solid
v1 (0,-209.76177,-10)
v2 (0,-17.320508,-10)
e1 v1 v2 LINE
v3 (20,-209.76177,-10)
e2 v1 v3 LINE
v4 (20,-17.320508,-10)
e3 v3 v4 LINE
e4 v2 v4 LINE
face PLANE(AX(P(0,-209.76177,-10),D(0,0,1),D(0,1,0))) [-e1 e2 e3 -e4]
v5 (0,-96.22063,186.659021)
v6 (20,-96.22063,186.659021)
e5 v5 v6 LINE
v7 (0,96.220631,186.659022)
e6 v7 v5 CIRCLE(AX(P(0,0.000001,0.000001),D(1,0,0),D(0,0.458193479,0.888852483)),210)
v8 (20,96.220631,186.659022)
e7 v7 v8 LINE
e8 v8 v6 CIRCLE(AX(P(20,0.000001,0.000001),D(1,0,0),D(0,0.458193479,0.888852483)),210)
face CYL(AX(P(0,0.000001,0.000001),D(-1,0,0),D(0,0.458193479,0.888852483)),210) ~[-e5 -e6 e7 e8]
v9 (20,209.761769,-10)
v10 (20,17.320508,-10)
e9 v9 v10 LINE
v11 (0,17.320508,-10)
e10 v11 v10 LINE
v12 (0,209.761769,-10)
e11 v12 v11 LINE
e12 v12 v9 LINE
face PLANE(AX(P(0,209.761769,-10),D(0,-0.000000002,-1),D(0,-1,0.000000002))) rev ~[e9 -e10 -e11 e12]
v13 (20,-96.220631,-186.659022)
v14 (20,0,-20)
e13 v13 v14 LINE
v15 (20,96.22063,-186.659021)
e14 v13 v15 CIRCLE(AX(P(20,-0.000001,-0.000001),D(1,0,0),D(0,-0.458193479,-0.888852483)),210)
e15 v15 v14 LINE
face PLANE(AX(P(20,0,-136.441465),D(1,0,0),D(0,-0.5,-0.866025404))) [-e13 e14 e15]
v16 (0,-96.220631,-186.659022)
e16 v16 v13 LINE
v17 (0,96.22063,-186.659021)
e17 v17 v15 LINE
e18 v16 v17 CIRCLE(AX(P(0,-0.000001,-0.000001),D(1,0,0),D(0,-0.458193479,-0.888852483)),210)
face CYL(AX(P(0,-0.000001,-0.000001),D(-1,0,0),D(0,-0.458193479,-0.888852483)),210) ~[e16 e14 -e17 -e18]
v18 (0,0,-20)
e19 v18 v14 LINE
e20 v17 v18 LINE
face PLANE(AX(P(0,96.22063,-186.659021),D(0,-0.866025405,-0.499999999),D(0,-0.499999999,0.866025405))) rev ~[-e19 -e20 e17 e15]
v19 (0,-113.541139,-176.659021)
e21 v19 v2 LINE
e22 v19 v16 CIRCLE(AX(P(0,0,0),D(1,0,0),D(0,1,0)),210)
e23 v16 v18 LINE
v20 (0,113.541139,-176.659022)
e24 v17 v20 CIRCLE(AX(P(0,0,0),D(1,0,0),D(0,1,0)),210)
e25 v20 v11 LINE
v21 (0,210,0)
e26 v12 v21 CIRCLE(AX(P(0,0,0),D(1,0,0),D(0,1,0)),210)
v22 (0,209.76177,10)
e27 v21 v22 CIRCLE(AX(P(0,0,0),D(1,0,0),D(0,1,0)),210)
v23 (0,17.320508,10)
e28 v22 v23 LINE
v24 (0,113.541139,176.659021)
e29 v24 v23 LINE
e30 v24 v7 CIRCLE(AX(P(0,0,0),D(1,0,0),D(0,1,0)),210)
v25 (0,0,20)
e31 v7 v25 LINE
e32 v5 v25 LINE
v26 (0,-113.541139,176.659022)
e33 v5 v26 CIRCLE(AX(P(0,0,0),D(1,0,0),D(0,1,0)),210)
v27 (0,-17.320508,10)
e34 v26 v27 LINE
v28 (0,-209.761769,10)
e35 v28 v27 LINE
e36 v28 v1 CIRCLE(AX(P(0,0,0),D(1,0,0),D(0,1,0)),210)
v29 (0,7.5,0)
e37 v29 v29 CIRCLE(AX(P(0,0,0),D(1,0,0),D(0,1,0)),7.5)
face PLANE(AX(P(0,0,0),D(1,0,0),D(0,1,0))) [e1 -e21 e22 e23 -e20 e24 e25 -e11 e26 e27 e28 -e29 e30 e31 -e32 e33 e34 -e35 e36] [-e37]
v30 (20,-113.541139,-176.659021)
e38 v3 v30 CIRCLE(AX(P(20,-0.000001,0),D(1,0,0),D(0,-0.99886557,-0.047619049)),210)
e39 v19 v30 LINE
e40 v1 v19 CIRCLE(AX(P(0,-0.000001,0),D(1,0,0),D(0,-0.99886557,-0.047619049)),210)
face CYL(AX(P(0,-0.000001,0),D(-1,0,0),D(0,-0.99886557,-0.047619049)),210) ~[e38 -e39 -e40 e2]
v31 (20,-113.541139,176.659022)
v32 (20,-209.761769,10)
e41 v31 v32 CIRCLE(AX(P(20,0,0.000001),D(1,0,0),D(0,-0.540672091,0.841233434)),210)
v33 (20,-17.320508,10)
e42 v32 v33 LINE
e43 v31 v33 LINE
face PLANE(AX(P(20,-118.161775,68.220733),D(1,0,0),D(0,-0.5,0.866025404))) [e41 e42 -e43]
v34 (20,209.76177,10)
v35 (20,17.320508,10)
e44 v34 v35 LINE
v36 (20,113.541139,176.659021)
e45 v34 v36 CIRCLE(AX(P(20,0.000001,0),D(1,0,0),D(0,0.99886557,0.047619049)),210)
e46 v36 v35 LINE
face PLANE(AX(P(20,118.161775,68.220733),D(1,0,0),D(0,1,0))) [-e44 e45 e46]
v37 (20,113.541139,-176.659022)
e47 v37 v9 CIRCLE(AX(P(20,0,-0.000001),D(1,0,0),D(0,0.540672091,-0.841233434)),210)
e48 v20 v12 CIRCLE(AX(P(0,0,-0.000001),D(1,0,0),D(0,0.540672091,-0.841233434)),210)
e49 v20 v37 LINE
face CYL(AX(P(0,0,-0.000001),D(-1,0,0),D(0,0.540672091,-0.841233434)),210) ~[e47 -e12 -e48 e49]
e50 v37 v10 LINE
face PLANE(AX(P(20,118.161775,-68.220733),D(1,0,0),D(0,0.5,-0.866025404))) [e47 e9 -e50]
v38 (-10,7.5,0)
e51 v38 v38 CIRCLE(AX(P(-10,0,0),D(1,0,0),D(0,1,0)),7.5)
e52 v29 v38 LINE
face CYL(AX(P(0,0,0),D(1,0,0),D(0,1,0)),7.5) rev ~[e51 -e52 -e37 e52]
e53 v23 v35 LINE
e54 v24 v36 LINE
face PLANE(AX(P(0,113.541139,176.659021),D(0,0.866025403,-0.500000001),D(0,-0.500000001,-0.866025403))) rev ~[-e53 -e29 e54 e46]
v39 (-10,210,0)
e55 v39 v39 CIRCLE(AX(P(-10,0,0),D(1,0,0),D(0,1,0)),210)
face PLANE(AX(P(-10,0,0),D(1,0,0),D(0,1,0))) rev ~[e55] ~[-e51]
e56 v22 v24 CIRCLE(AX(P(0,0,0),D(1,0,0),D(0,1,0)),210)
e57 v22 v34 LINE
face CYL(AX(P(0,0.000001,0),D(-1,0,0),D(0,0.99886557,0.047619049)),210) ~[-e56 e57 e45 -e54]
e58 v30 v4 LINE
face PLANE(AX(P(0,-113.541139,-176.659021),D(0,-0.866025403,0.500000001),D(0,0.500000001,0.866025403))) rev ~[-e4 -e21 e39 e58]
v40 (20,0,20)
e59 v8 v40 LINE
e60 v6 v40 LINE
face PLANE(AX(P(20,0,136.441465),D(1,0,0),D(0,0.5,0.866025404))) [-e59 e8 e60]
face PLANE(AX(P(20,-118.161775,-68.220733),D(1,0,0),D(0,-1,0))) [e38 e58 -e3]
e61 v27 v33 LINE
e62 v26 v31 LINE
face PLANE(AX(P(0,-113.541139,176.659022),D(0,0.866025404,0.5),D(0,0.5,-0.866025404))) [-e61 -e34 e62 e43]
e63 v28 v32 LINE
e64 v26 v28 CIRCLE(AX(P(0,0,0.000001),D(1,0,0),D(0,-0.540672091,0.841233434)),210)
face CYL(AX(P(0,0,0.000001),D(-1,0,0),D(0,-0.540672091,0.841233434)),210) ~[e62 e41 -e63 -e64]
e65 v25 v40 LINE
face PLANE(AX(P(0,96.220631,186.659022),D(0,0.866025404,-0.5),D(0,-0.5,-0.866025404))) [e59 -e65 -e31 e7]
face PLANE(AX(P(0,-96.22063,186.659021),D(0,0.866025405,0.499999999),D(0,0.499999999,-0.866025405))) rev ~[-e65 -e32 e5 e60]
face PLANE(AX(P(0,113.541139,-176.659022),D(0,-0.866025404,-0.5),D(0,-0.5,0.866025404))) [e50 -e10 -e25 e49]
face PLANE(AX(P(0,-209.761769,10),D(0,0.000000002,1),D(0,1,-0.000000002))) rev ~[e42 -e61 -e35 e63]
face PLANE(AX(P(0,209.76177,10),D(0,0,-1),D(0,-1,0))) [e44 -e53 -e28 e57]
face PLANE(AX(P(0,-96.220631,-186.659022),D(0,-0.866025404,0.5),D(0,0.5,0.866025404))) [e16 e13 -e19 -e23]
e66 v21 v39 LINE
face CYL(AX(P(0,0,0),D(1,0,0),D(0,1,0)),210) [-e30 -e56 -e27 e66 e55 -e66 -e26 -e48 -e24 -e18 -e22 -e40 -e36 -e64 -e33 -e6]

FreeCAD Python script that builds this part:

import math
import FreeCAD as App
import Part
import Sketcher
Q = App.Units.Quantity

doc = App.newDocument("Part")
body = doc.addObject("PartDesign::Body", "Body")

sketch1 = body.newObject("Sketcher::SketchObject", "Sketch")
sketch1.AttachmentSupport = (doc.getObject("YZ_Plane"), [""])
sketch1.MapMode = "FlatFace"
sketch1.addGeometry(Part.Circle(App.Vector(0, 0, 0), App.Vector(0, 0, 1), 210), False)
sketch1.addGeometry(Part.Circle(App.Vector(0, 0, 0), App.Vector(0, 0, 1), 8), False)
sketch1.addConstraint(Sketcher.Constraint("Coincident", 0, 3, -1, 1))
sketch1.addConstraint(Sketcher.Constraint("Coincident", 1, 3, -1, 1))
sketch1.addConstraint(Sketcher.Constraint("Diameter", 0, 420.0))
sketch1.addConstraint(Sketcher.Constraint("Diameter", 1, 15.0))
pad1 = body.newObject("PartDesign::Pad", "Pad")
pad1.Profile = sketch1
pad1.Length = 10
pad1.Reversed = True

sketch2 = body.newObject("Sketcher::SketchObject", "Sketch001")
sketch2.AttachmentSupport = (doc.getObject("YZ_Plane"), [""])
sketch2.MapMode = "FlatFace"
sketch2.addGeometry(Part.LineSegment(App.Vector(114, 177, 0), App.Vector(17, 10, 0)), False)
sketch2.addGeometry(Part.LineSegment(App.Vector(17, 10, 0), App.Vector(210, 10, 0)), False)
sketch2.addGeometry(Part.ArcOfCircle(Part.Circle(App.Vector(0, 0, 0), App.Vector(0, 0, 1), 210), math.radians(3), math.radians(57)), False)
sketch2.addConstraint(Sketcher.Constraint("Coincident", 0, 2, 1, 1))
sketch2.addConstraint(Sketcher.Constraint("Coincident", 1, 2, 2, 1))
sketch2.addConstraint(Sketcher.Constraint("Coincident", 2, 2, 0, 1))
sketch2.addConstraint(Sketcher.Constraint("Horizontal", 1))
sketch2.addConstraint(Sketcher.Constraint("Coincident", 2, 3, -1, 1))
sketch2.addConstraint(Sketcher.Constraint("Radius", 2, 210.0))
sketch2.addConstraint(Sketcher.Constraint("Angle", 0, Q("-120 deg")))
sketch2.addConstraint(Sketcher.Constraint("DistanceY", -1, 1, 0, 2, 10.0))
sketch2.addConstraint(Sketcher.Constraint("Distance", 0, 192.441261))
pad2 = body.newObject("PartDesign::Pad", "Pad001")
pad2.Profile = sketch2
pad2.Length = 20
doc.recompute()

polarpattern = body.newObject("PartDesign::PolarPattern", "PolarPattern")
polarpattern.Originals = [pad2]
polarpattern.Axis = (doc.getObject("X_Axis"), [""])
polarpattern.Angle = 360
polarpattern.Occurrences = 6
body.Tip = polarpattern

doc.recompute()
